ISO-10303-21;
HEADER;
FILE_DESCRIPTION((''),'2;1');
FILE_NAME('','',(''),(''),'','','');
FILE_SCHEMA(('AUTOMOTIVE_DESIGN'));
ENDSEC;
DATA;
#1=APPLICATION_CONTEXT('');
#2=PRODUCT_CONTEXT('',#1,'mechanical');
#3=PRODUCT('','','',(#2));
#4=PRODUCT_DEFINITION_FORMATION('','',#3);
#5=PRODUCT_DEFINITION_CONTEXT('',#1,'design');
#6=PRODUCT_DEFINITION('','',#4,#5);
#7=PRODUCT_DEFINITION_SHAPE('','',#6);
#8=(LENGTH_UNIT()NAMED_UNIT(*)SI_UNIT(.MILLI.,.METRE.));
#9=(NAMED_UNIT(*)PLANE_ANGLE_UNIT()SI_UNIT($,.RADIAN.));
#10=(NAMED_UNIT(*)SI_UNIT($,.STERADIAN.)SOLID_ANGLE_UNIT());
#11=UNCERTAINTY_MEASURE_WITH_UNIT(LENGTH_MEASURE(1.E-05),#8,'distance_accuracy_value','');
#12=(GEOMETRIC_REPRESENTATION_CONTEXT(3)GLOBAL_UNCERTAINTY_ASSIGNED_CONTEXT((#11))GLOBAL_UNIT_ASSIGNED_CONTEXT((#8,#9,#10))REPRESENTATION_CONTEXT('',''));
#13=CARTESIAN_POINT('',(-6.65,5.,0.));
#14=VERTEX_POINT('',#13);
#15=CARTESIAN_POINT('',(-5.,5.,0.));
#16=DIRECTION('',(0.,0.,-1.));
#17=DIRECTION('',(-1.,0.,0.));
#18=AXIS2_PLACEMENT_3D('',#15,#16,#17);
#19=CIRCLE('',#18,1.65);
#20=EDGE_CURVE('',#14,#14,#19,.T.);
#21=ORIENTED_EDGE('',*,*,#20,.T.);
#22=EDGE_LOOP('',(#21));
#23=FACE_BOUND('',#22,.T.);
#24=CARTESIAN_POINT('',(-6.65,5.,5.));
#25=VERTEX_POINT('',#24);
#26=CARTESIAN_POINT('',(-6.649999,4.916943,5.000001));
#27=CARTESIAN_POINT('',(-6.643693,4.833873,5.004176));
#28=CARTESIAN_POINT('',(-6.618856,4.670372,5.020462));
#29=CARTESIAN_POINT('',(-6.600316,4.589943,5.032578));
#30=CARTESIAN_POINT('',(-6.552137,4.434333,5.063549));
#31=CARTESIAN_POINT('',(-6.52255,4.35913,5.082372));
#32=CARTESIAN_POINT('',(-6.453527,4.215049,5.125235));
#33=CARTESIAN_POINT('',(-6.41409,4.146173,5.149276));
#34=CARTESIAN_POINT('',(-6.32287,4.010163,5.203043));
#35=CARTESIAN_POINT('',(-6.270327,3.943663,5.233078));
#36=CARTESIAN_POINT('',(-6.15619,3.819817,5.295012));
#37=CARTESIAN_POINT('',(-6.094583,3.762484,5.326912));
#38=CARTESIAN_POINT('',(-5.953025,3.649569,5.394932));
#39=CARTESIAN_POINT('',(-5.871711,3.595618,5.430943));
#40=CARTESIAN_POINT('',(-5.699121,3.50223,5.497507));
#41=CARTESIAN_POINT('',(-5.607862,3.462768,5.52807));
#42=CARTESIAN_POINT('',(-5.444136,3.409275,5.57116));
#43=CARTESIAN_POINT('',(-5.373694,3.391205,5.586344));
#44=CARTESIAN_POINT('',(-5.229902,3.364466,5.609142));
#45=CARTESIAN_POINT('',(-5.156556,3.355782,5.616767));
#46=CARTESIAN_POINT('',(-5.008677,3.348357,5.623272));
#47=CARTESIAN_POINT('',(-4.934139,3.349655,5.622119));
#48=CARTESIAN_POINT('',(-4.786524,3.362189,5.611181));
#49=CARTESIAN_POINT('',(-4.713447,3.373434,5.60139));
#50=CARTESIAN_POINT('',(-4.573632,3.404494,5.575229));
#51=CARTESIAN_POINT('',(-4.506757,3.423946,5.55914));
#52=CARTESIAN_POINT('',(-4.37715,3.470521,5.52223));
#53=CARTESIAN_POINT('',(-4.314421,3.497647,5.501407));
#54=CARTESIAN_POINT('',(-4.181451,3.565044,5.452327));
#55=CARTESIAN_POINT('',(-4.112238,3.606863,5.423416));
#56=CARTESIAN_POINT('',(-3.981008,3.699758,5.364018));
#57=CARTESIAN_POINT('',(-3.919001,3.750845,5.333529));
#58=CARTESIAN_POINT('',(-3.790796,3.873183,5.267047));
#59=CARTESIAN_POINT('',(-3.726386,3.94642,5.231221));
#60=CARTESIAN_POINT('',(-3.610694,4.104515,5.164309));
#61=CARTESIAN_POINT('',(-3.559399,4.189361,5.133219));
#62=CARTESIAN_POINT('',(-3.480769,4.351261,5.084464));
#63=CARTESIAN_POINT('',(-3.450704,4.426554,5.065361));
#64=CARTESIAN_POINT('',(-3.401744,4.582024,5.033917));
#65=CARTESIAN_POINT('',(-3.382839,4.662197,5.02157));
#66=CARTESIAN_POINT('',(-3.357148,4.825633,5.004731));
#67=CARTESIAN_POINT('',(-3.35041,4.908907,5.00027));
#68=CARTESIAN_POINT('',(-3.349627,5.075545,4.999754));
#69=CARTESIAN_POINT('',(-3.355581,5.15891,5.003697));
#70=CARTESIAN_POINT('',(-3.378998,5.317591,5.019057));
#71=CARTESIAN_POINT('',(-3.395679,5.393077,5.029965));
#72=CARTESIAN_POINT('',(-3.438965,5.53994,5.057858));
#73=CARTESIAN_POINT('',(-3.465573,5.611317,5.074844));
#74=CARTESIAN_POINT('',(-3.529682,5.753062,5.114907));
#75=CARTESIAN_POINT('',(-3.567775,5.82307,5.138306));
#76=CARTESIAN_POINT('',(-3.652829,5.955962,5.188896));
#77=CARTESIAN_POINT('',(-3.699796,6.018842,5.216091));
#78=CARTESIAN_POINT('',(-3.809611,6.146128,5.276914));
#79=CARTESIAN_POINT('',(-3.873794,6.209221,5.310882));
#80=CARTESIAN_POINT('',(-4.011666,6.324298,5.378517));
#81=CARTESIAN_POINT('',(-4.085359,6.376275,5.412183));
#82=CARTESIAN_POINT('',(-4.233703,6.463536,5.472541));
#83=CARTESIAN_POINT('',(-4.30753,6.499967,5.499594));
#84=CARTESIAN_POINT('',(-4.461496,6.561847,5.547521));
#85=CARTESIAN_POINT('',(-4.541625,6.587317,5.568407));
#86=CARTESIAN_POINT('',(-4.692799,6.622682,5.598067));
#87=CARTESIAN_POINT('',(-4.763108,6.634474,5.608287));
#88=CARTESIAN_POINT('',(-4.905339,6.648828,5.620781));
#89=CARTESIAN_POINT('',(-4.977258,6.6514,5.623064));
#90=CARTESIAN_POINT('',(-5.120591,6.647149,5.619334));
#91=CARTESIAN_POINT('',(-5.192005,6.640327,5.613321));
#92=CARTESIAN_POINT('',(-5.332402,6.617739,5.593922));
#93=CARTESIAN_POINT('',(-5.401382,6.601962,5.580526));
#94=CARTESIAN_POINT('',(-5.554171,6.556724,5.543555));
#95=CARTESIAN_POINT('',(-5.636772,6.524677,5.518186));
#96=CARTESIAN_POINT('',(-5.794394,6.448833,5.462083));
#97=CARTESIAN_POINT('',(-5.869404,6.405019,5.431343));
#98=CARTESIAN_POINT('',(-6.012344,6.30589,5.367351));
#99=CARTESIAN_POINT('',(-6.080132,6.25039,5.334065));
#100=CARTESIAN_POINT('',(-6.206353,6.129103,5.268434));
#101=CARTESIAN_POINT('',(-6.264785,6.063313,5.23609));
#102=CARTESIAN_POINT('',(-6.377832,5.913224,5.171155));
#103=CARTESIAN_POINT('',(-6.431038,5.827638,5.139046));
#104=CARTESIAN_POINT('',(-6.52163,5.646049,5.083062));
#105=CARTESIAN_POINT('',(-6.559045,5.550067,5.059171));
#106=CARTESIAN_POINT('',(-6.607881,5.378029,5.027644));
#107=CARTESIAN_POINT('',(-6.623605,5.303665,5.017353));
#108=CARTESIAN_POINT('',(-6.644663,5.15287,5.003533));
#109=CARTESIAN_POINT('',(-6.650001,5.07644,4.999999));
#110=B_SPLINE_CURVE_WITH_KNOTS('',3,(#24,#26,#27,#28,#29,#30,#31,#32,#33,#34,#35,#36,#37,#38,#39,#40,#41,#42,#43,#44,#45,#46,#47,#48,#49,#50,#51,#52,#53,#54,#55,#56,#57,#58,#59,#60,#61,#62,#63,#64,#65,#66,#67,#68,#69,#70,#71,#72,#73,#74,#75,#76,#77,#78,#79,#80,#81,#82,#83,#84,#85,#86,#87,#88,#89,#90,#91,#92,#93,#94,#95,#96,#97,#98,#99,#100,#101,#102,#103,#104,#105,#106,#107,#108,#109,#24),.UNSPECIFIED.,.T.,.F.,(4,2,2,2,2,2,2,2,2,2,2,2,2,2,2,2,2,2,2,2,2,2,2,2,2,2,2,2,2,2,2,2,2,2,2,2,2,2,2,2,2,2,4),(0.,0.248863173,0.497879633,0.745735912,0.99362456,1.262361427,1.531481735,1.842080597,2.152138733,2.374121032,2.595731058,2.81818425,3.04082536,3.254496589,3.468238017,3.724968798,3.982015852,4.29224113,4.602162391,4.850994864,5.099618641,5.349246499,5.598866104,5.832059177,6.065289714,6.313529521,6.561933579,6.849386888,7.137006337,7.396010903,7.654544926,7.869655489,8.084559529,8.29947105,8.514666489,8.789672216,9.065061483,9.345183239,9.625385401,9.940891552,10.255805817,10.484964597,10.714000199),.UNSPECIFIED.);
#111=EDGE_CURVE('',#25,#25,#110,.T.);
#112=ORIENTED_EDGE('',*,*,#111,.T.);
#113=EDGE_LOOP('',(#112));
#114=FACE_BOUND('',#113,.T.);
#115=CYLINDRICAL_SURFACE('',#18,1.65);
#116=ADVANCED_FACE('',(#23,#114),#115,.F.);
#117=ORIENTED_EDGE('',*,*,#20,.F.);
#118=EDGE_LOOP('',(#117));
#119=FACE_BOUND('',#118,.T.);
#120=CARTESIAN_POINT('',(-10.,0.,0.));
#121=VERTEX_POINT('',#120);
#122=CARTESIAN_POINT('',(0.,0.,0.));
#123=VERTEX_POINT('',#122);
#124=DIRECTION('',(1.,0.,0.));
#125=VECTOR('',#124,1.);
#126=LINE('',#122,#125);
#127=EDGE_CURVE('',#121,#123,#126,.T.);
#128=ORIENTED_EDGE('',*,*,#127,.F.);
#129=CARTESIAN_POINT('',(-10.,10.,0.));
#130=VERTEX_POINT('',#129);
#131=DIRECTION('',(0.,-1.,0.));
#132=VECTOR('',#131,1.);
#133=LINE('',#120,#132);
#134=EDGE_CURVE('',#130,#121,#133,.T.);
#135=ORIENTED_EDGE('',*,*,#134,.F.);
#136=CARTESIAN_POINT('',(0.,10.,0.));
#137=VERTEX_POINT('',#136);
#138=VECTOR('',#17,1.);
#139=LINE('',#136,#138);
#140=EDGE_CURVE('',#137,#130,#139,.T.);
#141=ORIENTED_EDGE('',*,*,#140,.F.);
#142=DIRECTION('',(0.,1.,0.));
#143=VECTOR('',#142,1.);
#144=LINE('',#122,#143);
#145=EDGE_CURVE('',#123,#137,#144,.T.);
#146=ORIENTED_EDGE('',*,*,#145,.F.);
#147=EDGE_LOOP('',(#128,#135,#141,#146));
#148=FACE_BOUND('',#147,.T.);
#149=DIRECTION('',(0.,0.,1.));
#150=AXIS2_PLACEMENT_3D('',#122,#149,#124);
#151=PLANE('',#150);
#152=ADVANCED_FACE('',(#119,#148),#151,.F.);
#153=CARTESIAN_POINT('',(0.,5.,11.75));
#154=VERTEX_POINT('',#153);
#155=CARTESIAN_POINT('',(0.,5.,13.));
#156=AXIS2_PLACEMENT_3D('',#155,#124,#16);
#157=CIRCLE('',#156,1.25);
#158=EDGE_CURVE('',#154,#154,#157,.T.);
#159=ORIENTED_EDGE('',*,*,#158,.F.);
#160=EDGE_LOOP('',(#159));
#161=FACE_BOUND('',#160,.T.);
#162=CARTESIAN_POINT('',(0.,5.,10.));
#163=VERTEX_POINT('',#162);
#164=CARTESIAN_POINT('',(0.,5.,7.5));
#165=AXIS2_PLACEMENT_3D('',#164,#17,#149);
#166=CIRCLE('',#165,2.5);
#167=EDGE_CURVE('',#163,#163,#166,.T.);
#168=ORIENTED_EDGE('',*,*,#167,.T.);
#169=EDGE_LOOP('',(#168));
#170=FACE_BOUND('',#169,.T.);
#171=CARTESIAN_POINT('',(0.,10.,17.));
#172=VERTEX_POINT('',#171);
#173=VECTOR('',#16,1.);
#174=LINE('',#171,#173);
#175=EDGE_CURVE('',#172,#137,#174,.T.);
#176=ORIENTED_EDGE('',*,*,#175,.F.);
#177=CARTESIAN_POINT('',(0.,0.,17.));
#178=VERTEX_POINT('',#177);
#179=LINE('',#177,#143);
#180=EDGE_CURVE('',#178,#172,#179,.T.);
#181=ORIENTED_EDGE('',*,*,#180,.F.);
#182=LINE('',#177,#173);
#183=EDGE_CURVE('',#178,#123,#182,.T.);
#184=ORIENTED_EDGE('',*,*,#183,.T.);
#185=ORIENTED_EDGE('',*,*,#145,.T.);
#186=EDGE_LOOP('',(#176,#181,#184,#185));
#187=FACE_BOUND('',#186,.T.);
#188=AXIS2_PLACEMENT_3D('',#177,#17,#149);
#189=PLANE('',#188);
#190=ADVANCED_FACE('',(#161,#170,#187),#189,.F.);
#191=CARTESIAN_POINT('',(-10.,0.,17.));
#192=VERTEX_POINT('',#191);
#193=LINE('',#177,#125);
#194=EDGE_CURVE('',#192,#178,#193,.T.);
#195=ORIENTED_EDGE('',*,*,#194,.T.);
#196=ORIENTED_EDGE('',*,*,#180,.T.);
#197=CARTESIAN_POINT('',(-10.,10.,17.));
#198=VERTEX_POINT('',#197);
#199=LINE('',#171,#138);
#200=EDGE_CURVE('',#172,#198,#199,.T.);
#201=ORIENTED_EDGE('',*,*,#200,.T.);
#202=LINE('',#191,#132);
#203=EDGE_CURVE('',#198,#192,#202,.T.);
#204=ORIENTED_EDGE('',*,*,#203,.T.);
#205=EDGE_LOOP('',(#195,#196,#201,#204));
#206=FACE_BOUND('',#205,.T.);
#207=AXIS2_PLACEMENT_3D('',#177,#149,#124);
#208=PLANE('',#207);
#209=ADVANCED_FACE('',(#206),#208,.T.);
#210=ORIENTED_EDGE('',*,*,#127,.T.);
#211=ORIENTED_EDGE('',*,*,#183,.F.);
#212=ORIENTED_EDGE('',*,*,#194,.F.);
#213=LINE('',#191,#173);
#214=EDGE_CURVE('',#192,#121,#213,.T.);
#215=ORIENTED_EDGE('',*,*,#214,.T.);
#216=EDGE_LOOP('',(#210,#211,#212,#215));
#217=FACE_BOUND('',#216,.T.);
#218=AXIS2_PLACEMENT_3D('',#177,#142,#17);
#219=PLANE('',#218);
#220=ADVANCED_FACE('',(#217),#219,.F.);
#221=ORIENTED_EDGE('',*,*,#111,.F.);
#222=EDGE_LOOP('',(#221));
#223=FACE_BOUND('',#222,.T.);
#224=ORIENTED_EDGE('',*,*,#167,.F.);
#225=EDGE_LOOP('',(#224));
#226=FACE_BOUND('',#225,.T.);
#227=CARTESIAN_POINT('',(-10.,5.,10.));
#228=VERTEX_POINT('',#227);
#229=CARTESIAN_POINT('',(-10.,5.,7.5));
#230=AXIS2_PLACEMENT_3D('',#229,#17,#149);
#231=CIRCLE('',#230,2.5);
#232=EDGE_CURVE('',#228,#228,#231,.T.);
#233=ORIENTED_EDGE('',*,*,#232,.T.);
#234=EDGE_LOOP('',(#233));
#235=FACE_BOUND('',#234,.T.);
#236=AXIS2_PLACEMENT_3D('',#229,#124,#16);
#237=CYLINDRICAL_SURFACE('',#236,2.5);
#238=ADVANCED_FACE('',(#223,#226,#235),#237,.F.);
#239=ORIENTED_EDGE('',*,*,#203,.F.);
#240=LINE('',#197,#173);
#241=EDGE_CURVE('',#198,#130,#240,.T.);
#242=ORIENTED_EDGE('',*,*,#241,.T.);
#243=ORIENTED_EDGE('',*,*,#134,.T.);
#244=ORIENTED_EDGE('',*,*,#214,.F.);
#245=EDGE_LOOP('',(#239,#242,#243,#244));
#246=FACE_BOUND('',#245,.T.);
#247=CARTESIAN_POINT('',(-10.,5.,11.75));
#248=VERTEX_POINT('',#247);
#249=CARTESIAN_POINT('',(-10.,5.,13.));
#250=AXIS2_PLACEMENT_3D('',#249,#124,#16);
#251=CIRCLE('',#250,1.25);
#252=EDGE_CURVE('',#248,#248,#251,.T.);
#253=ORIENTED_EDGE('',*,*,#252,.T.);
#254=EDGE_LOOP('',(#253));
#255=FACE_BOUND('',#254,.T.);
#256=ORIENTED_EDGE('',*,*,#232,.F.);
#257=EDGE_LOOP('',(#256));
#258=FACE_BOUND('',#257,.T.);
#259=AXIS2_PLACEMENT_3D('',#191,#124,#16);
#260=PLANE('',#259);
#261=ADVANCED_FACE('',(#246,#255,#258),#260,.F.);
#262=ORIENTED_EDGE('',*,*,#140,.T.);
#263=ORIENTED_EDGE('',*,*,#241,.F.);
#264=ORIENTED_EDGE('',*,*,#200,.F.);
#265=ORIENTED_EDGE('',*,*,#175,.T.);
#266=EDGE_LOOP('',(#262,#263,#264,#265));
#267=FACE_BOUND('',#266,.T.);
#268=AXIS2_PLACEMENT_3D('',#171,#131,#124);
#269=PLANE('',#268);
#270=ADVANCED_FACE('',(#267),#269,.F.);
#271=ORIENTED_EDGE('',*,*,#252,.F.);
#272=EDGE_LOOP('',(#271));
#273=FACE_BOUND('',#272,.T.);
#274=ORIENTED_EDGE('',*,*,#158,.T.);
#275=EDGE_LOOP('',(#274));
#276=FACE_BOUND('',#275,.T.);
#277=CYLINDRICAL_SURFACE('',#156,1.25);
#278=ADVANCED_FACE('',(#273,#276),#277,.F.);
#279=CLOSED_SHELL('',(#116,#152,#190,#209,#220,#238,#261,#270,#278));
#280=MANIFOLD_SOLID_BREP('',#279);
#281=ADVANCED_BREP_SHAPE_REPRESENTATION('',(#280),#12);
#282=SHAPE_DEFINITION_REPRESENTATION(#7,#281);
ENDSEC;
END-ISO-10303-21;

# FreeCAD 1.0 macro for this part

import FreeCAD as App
import Part
import Sketcher

V = App.Vector

doc = App.newDocument("Part")
body = doc.addObject("PartDesign::Body", "Body")

# Sketch on XY plane
sketch1 = doc.addObject("Sketcher::SketchObject", "Sketch")
body.addObject(sketch1)
sketch1.AttachmentSupport = (doc.XY_Plane, [""])
sketch1.MapMode = "FlatFace"
sketch1.addGeometry([
    Part.LineSegment(V(-10, 10, 0), V(-10, 0, 0)),
    Part.LineSegment(V(-10, 0, 0), V(0, 0, 0)),
    Part.LineSegment(V(0, 0, 0), V(0, 10, 0)),
    Part.LineSegment(V(0, 10, 0), V(-10, 10, 0)),
], False)
sketch1.addConstraint([
    Sketcher.Constraint("Coincident", 0, 2, 1, 1),
    Sketcher.Constraint("Coincident", 1, 2, 2, 1),
    Sketcher.Constraint("Coincident", 2, 2, 3, 1),
    Sketcher.Constraint("Coincident", 3, 2, 0, 1),
    Sketcher.Constraint("Vertical", 0),
    Sketcher.Constraint("Horizontal", 1),
    Sketcher.Constraint("Vertical", 2),
    Sketcher.Constraint("Horizontal", 3),
    Sketcher.Constraint("Coincident", 1, 2, -1, 1),
    Sketcher.Constraint("Equal", 3, 0),
    Sketcher.Constraint("DistanceX", 1, 1, 1, 2, 10.0),
])
pad1 = doc.addObject("PartDesign::Pad", "Pad")
body.addObject(pad1)
pad1.Profile = sketch1
pad1.Length = 17

# Sketch on YZ plane
sketch2 = doc.addObject("Sketcher::SketchObject", "Sketch001")
body.addObject(sketch2)
sketch2.AttachmentSupport = (doc.YZ_Plane, [""])
sketch2.MapMode = "FlatFace"
sketch2.addGeometry(Part.Circle(V(5, 7.5, 0), V(0, 0, 1), 2.5), False)
sketch2.addConstraint([
    Sketcher.Constraint("Diameter", 0, 5.0),
    Sketcher.Constraint("DistanceX", -1, 1, 0, 3, 5.0),
    Sketcher.Constraint("DistanceY", -1, 1, 0, 3, 7.5),
])
pocket1 = doc.addObject("PartDesign::Pocket", "Pocket")
body.addObject(pocket1)
pocket1.Profile = sketch2
pocket1.Type = "ThroughAll"

# Sketch on YZ plane
sketch3 = doc.addObject("Sketcher::SketchObject", "Sketch002")
body.addObject(sketch3)
sketch3.AttachmentSupport = (doc.YZ_Plane, [""])
sketch3.MapMode = "FlatFace"
sketch3.addGeometry(Part.Circle(V(5, 13, 0), V(0, 0, 1), 1.2), False)
sketch3.addConstraint([
    Sketcher.Constraint("Diameter", 0, 2.5),
    Sketcher.Constraint("DistanceX", -1, 1, 0, 3, 5.0),
    Sketcher.Constraint("DistanceY", -1, 1, 0, 3, 13.0),
])
doc.recompute()
hole = doc.addObject("PartDesign::Hole", "Hole")
body.addObject(hole)
hole.Profile = sketch3
hole.ThreadType = "None"
hole.Diameter = 2.5
hole.DepthType = "ThroughAll"

# Sketch on XY plane
sketch4 = doc.addObject("Sketcher::SketchObject", "Sketch003")
body.addObject(sketch4)
sketch4.AttachmentSupport = (doc.XY_Plane, [""])
sketch4.MapMode = "FlatFace"
sketch4.addGeometry(Part.Circle(V(-5, 5, 0), V(0, 0, 1), 1.6), False)
sketch4.addConstraint([
    Sketcher.Constraint("Diameter", 0, 3.3),
    Sketcher.Constraint("DistanceX", 0, 3, -1, 1, 5.0),
    Sketcher.Constraint("DistanceY", -1, 1, 0, 3, 5.0),
])
doc.recompute()
hole2 = doc.addObject("PartDesign::Hole", "Hole001")
body.addObject(hole2)
hole2.Profile = sketch4
hole2.ThreadType = "None"
hole2.Diameter = 3.3
hole2.DepthType = "Dimension"
hole2.Depth = 8
hole2.DrillPoint = "Angled"
hole2.DrillPointAngle = 118
hole2.Reversed = True

doc.recompute()
